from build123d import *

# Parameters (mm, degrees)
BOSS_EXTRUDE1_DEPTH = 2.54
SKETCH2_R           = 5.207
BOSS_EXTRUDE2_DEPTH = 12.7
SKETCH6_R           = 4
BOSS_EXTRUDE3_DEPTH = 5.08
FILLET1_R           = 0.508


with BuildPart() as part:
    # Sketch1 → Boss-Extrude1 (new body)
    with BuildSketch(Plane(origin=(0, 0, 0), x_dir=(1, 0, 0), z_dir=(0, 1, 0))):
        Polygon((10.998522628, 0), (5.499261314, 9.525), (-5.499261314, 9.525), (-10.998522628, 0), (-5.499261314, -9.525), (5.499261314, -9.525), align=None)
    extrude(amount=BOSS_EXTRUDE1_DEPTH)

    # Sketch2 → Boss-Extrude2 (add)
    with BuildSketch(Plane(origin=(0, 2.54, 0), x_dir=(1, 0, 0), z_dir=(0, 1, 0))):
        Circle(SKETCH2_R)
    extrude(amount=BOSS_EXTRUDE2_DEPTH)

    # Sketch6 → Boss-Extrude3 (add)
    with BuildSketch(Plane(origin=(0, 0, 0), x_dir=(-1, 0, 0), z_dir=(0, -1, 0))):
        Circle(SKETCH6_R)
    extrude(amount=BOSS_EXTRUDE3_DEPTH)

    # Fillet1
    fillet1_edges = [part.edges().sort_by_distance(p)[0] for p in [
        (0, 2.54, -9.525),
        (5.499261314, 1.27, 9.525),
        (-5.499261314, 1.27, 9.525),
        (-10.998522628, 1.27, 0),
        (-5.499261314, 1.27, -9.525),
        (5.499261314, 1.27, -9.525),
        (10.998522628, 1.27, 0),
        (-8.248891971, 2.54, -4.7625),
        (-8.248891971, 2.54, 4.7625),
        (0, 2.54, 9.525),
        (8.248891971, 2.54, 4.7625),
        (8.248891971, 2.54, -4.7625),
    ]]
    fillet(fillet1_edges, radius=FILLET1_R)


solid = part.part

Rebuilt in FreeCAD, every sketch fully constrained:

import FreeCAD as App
import Part
import Sketcher
Q = App.Units.Quantity


def edges_at(feature, points):
    """Names of the edges that pass closest to the given points."""
    edges = feature.Shape.Edges
    near = lambda p: min(range(len(edges)), key=lambda i: edges[i].distToShape(Part.Vertex(*p))[0])
    return sorted({f"Edge{near(p) + 1}" for p in points})


def add_polygon(sketch, points):
    """Adds a closed chain of lines whose ends are joined by coincident constraints."""
    first, n = sketch.GeometryCount, len(points)
    for a, b in zip(points, points[1:] + points[:1]):
        sketch.addGeometry(Part.LineSegment(App.Vector(*a, 0), App.Vector(*b, 0)), False)
    for i in range(n):
        sketch.addConstraint(Sketcher.Constraint("Coincident", first + i, 2, first + (i + 1) % n, 1))

doc = App.newDocument("Part")
body = doc.addObject("PartDesign::Body", "Body")

sketch1 = body.newObject("Sketcher::SketchObject", "Sketch")
sketch1.AttachmentSupport = (doc.getObject("XZ_Plane"), [""])
sketch1.MapMode = "FlatFace"
add_polygon(sketch1, [(10.998523, 0), (5.499261, -9.525), (-5.499261, -9.525), (-10.998523, 0), (-5.499261, 9.525), (5.499261, 9.525)])
sketch1.addConstraint([
    Sketcher.Constraint("Horizontal", 1),
    Sketcher.Constraint("Horizontal", 4),
    Sketcher.Constraint("Symmetric", 0, 2, 3, 2, -1, 1),
    Sketcher.Constraint("Symmetric", 2, 2, 5, 2, -1, 1),
    Sketcher.Constraint("PointOnObject", 2, 2, -1),
    Sketcher.Constraint("Parallel", 2, 5),
    Sketcher.Constraint("Vertical", 1, 2, 3, 2),
    Sketcher.Constraint("Angle", 0, Q("-120 deg")),
    Sketcher.Constraint("DistanceY", 1, 2, 3, 2, Q("0.75 in")),
    Sketcher.Constraint("DistanceX", 1, 2, 1, 1, 10.998523),
])
pad1 = body.newObject("PartDesign::Pad", "Pad")
pad1.Profile = sketch1
pad1.Length = Q("0.1 in")
pad1.Reversed = True

sketch2 = body.newObject("Sketcher::SketchObject", "Sketch001")
sketch2.AttachmentSupport = (doc.getObject("XZ_Plane"), [""])
sketch2.MapMode = "FlatFace"
sketch2.AttachmentOffset = App.Placement(App.Vector(0, 0, -0.1 * 25.4), App.Rotation())
sketch2.addGeometry(Part.Circle(App.Vector(0, 0, 0), App.Vector(0, 0, 1), 5.207), False)
sketch2.addConstraint([
    Sketcher.Constraint("Coincident", 0, 3, -1, 1),
    Sketcher.Constraint("Diameter", 0, Q("0.41 in")),
])
pad2 = body.newObject("PartDesign::Pad", "Pad001")
pad2.Profile = sketch2
pad2.Length = Q("0.5 in")
pad2.Reversed = True

sketch3 = body.newObject("Sketcher::SketchObject", "Sketch002")
sketch3.AttachmentSupport = (doc.getObject("XZ_Plane"), [""])
sketch3.MapMode = "FlatFace"
sketch3.addGeometry(Part.Circle(App.Vector(0, 0, 0), App.Vector(0, 0, 1), 4), False)
sketch3.addConstraint([
    Sketcher.Constraint("Coincident", 0, 3, -1, 1),
    Sketcher.Constraint("Diameter", 0, 8.0),
])
pad3 = body.newObject("PartDesign::Pad", "Pad002")
pad3.Profile = sketch3
pad3.Length = Q("0.2 in")
doc.recompute()

fillet = body.newObject("PartDesign::Fillet", "Fillet")
fillet.Base = (pad3, edges_at(pad3, [
    (0, 2.54, -9.525),
    (5.499, 1.27, 9.525),
    (-5.499, 1.27, 9.525),
    (-10.999, 1.27, 0),
    (-5.499, 1.27, -9.525),
    (5.499, 1.27, -9.525),
    (10.999, 1.27, 0),
    (-8.249, 2.54, -4.763),
    (-8.249, 2.54, 4.763),
    (0, 2.54, 9.525),
    (8.249, 2.54, 4.763),
    (8.249, 2.54, -4.763),
]))
fillet.Radius = Q("0.02 in")

doc.recompute()
